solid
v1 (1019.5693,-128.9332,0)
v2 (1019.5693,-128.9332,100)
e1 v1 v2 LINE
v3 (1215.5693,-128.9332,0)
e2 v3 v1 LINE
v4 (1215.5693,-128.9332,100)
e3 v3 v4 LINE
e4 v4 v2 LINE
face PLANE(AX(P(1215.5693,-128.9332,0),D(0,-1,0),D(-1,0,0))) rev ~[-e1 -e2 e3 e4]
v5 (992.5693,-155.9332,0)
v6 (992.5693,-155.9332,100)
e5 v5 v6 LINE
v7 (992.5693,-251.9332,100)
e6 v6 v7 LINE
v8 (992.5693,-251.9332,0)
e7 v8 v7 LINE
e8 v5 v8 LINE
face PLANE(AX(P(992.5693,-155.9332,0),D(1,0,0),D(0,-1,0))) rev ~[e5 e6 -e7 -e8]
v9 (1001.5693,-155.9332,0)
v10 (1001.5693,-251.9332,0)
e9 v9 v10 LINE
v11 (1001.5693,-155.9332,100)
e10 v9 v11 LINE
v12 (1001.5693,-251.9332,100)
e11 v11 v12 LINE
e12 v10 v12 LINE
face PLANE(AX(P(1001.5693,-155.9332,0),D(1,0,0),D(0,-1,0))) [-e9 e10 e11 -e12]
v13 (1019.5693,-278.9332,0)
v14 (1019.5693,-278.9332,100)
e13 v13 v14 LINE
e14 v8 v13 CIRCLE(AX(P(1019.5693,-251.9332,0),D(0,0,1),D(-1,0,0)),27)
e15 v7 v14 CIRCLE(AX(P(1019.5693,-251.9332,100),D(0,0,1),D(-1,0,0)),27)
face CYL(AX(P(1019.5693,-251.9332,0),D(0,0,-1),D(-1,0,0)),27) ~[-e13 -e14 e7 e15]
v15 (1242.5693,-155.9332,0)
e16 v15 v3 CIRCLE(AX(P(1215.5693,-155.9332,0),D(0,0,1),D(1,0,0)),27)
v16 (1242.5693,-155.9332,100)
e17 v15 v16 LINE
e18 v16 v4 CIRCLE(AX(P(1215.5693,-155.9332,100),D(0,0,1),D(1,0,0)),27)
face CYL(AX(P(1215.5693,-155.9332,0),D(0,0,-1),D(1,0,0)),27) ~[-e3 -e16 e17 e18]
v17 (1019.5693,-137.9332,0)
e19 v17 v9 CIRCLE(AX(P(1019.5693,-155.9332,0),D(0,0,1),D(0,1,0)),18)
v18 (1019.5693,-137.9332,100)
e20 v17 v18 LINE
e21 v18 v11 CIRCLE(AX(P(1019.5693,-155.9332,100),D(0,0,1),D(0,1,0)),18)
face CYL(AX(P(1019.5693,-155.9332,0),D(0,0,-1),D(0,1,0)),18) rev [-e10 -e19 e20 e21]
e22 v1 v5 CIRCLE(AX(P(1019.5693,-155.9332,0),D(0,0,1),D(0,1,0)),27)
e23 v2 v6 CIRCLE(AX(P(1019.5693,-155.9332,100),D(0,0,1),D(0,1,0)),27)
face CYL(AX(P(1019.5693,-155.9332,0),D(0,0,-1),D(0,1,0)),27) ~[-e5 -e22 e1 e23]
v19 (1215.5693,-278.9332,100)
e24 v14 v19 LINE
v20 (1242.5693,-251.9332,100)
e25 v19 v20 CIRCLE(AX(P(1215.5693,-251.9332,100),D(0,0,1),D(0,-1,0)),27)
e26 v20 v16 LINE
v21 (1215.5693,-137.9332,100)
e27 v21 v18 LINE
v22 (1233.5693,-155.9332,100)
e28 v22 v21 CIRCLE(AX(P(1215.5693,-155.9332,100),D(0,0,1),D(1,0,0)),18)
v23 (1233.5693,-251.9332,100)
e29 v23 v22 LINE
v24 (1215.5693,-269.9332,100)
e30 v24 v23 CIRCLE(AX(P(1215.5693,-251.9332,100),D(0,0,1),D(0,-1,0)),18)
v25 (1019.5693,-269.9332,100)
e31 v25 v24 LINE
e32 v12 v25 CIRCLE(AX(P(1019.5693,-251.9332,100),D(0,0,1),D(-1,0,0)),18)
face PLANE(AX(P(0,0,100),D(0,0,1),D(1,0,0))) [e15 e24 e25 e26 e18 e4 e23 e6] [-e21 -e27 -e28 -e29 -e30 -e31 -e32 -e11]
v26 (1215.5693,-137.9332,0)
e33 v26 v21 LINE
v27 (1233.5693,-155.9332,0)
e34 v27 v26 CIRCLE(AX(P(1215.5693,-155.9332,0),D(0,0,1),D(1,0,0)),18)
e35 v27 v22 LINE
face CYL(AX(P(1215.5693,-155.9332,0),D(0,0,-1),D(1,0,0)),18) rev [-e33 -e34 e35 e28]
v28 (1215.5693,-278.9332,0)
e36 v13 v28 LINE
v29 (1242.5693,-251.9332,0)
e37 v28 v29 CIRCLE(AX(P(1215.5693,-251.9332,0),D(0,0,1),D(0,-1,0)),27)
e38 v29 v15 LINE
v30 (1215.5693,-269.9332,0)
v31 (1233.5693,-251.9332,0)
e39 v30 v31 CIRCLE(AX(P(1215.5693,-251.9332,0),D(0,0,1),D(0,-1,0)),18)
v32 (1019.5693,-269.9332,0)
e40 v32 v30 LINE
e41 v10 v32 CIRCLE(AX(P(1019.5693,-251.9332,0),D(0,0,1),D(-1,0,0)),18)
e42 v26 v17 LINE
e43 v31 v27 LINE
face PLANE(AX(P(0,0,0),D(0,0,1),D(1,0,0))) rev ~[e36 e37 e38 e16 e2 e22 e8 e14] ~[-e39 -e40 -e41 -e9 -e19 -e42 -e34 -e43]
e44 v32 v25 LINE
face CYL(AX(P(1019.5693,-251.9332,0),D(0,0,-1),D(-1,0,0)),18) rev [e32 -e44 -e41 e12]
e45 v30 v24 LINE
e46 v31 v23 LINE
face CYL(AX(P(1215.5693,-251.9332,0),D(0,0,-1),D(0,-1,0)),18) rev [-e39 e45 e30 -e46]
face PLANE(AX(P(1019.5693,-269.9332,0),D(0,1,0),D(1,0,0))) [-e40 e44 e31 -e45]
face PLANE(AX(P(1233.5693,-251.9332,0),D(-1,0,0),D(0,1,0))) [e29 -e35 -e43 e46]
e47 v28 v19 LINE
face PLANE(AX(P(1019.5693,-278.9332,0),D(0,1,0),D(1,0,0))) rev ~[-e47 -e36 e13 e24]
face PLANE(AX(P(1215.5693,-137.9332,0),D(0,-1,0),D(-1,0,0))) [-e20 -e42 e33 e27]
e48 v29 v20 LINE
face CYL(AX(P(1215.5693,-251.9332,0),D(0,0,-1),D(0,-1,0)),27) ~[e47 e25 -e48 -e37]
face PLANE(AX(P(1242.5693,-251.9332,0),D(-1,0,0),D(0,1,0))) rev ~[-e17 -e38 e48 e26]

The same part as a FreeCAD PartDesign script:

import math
import FreeCAD as App
import Part
import Sketcher
from FreeCAD import Vector
Q = App.Units.Quantity

doc = App.newDocument("Part")
body = doc.addObject("PartDesign::Body", "Body")

sketch1 = body.newObject("Sketcher::SketchObject", "Sketch")
sketch1.AttachmentSupport = (doc.getObject("XY_Plane"), [""])
sketch1.MapMode = "FlatFace"
sketch1.addGeometry(Part.ArcOfCircle(Part.Circle(Vector(1020, -252, 0), Vector(0, 0, 1), 27), math.radians(180), math.radians(270)), False)
sketch1.addGeometry(Part.LineSegment(Vector(1020, -279, 0), Vector(1216, -279, 0)), False)
sketch1.addGeometry(Part.ArcOfCircle(Part.Circle(Vector(1216, -252, 0), Vector(0, 0, 1), 27), math.radians(-90), math.radians(0)), False)
sketch1.addGeometry(Part.LineSegment(Vector(1243, -252, 0), Vector(1243, -156, 0)), False)
sketch1.addGeometry(Part.ArcOfCircle(Part.Circle(Vector(1216, -156, 0), Vector(0, 0, 1), 27), math.radians(0), math.radians(90)), False)
sketch1.addGeometry(Part.LineSegment(Vector(1216, -129, 0), Vector(1020, -129, 0)), False)
sketch1.addGeometry(Part.ArcOfCircle(Part.Circle(Vector(1020, -156, 0), Vector(0, 0, 1), 27), math.radians(90), math.radians(180)), False)
sketch1.addGeometry(Part.LineSegment(Vector(993, -156, 0), Vector(993, -252, 0)), False)
sketch1.addGeometry(Part.LineSegment(Vector(1216, -270, 0), Vector(1020, -270, 0)), False)
sketch1.addGeometry(Part.ArcOfCircle(Part.Circle(Vector(1020, -252, 0), Vector(0, 0, 1), 18), math.radians(180), math.radians(270)), False)
sketch1.addGeometry(Part.LineSegment(Vector(1002, -252, 0), Vector(1002, -156, 0)), False)
sketch1.addGeometry(Part.ArcOfCircle(Part.Circle(Vector(1020, -156, 0), Vector(0, 0, 1), 18), math.radians(90), math.radians(180)), False)
sketch1.addGeometry(Part.LineSegment(Vector(1020, -138, 0), Vector(1216, -138, 0)), False)
sketch1.addGeometry(Part.ArcOfCircle(Part.Circle(Vector(1216, -156, 0), Vector(0, 0, 1), 18), math.radians(0), math.radians(90)), False)
sketch1.addGeometry(Part.LineSegment(Vector(1234, -156, 0), Vector(1234, -252, 0)), False)
sketch1.addGeometry(Part.ArcOfCircle(Part.Circle(Vector(1216, -252, 0), Vector(0, 0, 1), 18), math.radians(-90), math.radians(0)), False)
sketch1.addConstraint(Sketcher.Constraint("Tangent", 0, 2, 1, 1))
sketch1.addConstraint(Sketcher.Constraint("Tangent", 1, 2, 2, 1))
sketch1.addConstraint(Sketcher.Constraint("Tangent", 2, 2, 3, 1))
sketch1.addConstraint(Sketcher.Constraint("Tangent", 3, 2, 4, 1))
sketch1.addConstraint(Sketcher.Constraint("Tangent", 4, 2, 5, 1))
sketch1.addConstraint(Sketcher.Constraint("Tangent", 5, 2, 6, 1))
sketch1.addConstraint(Sketcher.Constraint("Tangent", 6, 2, 7, 1))
sketch1.addConstraint(Sketcher.Constraint("Tangent", 7, 2, 0, 1))
sketch1.addConstraint(Sketcher.Constraint("Tangent", 8, 2, 9, 2))
sketch1.addConstraint(Sketcher.Constraint("Tangent", 9, 1, 10, 1))
sketch1.addConstraint(Sketcher.Constraint("Tangent", 10, 2, 11, 2))
sketch1.addConstraint(Sketcher.Constraint("Tangent", 11, 1, 12, 1))
sketch1.addConstraint(Sketcher.Constraint("Tangent", 12, 2, 13, 2))
sketch1.addConstraint(Sketcher.Constraint("Tangent", 13, 1, 14, 1))
sketch1.addConstraint(Sketcher.Constraint("Tangent", 14, 2, 15, 2))
sketch1.addConstraint(Sketcher.Constraint("Tangent", 15, 1, 8, 1))
sketch1.addConstraint(Sketcher.Constraint("Horizontal", 1))
sketch1.addConstraint(Sketcher.Constraint("Vertical", 3))
sketch1.addConstraint(Sketcher.Constraint("Horizontal", 5))
sketch1.addConstraint(Sketcher.Constraint("Vertical", 7))
sketch1.addConstraint(Sketcher.Constraint("Horizontal", 8))
sketch1.addConstraint(Sketcher.Constraint("Vertical", 10))
sketch1.addConstraint(Sketcher.Constraint("Horizontal", 12))
sketch1.addConstraint(Sketcher.Constraint("Vertical", 14))
sketch1.addConstraint(Sketcher.Constraint("Coincident", 9, 3, 0, 3))
sketch1.addConstraint(Sketcher.Constraint("Coincident", 11, 3, 6, 3))
sketch1.addConstraint(Sketcher.Constraint("Coincident", 13, 3, 4, 3))
sketch1.addConstraint(Sketcher.Constraint("Equal", 0, 2))
sketch1.addConstraint(Sketcher.Constraint("Equal", 2, 4))
sketch1.addConstraint(Sketcher.Constraint("Equal", 4, 6))
sketch1.addConstraint(Sketcher.Constraint("Equal", 13, 15))
sketch1.addConstraint(Sketcher.Constraint("Radius", 0, Q("27 mm")))
sketch1.addConstraint(Sketcher.Constraint("Radius", 9, Q("18 mm")))
sketch1.addConstraint(Sketcher.Constraint("DistanceX", 1, 1, 1, 2, Q("196 mm")))
sketch1.addConstraint(Sketcher.Constraint("DistanceY", 3, 1, 3, 2, Q("96 mm")))
sketch1.addConstraint(Sketcher.Constraint("DistanceX", -1, 1, 0, 3, Q("1019.5693 mm")))
sketch1.addConstraint(Sketcher.Constraint("DistanceY", 0, 3, -1, 1, Q("251.9332 mm")))
pad1 = body.newObject("PartDesign::Pad", "Pad")
pad1.Profile = sketch1
pad1.Length = 100

doc.recompute()
